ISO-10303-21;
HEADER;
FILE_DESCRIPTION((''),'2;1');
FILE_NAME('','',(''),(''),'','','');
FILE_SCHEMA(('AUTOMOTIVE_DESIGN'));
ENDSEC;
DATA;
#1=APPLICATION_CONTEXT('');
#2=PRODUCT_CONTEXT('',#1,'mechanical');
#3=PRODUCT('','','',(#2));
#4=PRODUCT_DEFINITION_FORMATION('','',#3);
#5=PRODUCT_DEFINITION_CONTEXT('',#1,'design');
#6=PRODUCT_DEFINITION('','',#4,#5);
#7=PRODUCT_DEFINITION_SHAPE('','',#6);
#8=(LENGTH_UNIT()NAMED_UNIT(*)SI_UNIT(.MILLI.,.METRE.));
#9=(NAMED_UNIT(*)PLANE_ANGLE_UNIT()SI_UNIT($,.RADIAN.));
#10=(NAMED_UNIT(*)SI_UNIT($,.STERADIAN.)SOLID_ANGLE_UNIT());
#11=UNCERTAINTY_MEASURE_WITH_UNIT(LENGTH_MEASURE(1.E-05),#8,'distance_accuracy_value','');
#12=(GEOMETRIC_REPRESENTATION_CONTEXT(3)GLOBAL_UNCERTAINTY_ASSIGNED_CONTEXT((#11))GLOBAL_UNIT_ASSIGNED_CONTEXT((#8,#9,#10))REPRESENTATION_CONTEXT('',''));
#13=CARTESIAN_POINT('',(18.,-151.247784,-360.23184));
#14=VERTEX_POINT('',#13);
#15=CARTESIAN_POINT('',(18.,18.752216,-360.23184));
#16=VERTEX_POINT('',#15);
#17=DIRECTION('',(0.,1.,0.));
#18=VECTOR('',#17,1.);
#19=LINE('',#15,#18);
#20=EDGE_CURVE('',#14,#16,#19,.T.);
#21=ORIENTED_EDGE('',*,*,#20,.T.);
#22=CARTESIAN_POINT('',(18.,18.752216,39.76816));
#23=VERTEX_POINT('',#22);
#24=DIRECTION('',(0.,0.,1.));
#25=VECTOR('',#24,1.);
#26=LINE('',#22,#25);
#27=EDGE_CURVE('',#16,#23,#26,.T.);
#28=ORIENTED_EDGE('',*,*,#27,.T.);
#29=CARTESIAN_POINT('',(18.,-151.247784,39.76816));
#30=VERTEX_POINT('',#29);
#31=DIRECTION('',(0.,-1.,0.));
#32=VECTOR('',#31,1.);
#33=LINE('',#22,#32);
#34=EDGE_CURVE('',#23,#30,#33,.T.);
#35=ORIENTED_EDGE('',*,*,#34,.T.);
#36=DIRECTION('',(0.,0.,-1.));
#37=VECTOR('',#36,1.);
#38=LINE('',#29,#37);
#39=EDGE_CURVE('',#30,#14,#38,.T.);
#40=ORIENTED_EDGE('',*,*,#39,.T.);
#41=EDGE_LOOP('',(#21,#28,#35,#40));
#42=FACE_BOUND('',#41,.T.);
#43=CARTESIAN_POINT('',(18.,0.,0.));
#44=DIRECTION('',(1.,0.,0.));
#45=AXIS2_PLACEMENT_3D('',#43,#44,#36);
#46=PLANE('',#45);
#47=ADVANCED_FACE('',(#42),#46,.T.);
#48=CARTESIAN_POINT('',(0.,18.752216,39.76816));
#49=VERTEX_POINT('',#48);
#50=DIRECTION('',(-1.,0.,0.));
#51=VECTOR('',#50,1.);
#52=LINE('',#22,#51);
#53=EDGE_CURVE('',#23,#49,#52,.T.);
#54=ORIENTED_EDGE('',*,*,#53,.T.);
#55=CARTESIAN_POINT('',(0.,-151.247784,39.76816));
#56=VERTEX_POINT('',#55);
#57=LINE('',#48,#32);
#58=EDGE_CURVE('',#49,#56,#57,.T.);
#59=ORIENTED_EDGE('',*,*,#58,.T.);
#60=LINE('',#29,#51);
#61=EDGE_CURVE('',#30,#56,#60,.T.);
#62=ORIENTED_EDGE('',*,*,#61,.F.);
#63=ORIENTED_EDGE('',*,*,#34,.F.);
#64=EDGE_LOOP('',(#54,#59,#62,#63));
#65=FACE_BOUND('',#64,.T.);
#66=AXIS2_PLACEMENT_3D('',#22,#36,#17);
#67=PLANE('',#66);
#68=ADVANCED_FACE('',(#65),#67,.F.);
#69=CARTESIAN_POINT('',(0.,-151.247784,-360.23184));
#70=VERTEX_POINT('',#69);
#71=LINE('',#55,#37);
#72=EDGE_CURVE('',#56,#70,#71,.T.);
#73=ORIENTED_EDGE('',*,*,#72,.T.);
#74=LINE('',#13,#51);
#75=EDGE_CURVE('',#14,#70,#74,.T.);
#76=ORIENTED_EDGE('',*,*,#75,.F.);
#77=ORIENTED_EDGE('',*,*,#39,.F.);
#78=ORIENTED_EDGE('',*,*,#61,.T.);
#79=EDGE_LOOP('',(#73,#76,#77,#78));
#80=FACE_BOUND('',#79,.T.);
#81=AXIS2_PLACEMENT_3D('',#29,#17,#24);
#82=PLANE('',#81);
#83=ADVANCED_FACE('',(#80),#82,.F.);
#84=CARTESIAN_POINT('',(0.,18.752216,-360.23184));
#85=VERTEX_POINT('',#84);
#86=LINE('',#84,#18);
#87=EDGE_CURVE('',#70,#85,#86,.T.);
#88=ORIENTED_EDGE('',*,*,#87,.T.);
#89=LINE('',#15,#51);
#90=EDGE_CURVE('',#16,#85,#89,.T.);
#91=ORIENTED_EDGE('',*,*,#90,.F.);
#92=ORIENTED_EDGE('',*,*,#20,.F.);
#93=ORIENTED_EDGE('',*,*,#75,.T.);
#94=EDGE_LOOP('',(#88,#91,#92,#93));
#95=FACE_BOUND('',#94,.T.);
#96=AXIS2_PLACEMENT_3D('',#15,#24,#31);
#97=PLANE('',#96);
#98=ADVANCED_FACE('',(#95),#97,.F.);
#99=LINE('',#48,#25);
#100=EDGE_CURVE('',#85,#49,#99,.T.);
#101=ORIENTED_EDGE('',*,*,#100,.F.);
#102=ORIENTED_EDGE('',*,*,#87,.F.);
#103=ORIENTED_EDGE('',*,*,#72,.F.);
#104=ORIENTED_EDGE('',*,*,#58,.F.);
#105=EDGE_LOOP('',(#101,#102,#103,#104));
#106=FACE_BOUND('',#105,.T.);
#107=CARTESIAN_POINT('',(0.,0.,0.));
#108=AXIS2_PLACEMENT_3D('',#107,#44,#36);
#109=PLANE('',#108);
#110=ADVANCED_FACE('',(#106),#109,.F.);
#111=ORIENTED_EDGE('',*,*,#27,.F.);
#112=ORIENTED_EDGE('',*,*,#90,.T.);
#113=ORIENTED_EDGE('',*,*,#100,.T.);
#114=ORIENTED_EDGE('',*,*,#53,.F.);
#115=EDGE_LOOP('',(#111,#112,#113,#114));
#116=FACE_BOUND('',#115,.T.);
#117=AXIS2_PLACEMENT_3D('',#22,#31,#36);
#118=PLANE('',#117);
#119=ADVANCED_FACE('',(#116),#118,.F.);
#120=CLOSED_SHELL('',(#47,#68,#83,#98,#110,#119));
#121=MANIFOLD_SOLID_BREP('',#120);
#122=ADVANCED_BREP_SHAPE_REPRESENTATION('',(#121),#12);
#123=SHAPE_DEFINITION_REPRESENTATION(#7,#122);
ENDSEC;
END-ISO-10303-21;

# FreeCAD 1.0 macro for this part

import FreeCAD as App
import Part
import Sketcher
from FreeCAD import Vector

doc = App.newDocument("Part")
body = doc.addObject("PartDesign::Body", "Body")

# Sketch on YZ plane
sketch1 = body.newObject("Sketcher::SketchObject", "Sketch")
sketch1.AttachmentSupport = (doc.getObject("YZ_Plane"), [""])
sketch1.MapMode = "FlatFace"
sketch1.addGeometry(Part.LineSegment(Vector(18.752216, 39.76816, 0), Vector(-151.247784, 39.76816, 0)), False)
sketch1.addGeometry(Part.LineSegment(Vector(-151.247784, 39.76816, 0), Vector(-151.247784, -360.23184, 0)), False)
sketch1.addGeometry(Part.LineSegment(Vector(-151.247784, -360.23184, 0), Vector(18.752216, -360.23184, 0)), False)
sketch1.addGeometry(Part.LineSegment(Vector(18.752216, -360.23184, 0), Vector(18.752216, 39.76816, 0)), False)
sketch1.addConstraint(Sketcher.Constraint("Coincident", 0, 2, 1, 1))
sketch1.addConstraint(Sketcher.Constraint("Coincident", 1, 2, 2, 1))
sketch1.addConstraint(Sketcher.Constraint("Coincident", 2, 2, 3, 1))
sketch1.addConstraint(Sketcher.Constraint("Coincident", 3, 2, 0, 1))
sketch1.addConstraint(Sketcher.Constraint("Horizontal", 0))
sketch1.addConstraint(Sketcher.Constraint("Vertical", 1))
sketch1.addConstraint(Sketcher.Constraint("Horizontal", 2))
sketch1.addConstraint(Sketcher.Constraint("Vertical", 3))
sketch1.addConstraint(Sketcher.Constraint("DistanceX", 0, 2, 0, 1, 170.0))
sketch1.addConstraint(Sketcher.Constraint("DistanceY", 1, 2, 1, 1, 400.0))
sketch1.addConstraint(Sketcher.Constraint("DistanceY", -1, 1, 0, 2, 39.76816))
sketch1.addConstraint(Sketcher.Constraint("DistanceX", 0, 2, -1, 1, 151.247784))
pad1 = body.newObject("PartDesign::Pad", "Pad")
pad1.Profile = sketch1
pad1.Length = 18

doc.recompute()
